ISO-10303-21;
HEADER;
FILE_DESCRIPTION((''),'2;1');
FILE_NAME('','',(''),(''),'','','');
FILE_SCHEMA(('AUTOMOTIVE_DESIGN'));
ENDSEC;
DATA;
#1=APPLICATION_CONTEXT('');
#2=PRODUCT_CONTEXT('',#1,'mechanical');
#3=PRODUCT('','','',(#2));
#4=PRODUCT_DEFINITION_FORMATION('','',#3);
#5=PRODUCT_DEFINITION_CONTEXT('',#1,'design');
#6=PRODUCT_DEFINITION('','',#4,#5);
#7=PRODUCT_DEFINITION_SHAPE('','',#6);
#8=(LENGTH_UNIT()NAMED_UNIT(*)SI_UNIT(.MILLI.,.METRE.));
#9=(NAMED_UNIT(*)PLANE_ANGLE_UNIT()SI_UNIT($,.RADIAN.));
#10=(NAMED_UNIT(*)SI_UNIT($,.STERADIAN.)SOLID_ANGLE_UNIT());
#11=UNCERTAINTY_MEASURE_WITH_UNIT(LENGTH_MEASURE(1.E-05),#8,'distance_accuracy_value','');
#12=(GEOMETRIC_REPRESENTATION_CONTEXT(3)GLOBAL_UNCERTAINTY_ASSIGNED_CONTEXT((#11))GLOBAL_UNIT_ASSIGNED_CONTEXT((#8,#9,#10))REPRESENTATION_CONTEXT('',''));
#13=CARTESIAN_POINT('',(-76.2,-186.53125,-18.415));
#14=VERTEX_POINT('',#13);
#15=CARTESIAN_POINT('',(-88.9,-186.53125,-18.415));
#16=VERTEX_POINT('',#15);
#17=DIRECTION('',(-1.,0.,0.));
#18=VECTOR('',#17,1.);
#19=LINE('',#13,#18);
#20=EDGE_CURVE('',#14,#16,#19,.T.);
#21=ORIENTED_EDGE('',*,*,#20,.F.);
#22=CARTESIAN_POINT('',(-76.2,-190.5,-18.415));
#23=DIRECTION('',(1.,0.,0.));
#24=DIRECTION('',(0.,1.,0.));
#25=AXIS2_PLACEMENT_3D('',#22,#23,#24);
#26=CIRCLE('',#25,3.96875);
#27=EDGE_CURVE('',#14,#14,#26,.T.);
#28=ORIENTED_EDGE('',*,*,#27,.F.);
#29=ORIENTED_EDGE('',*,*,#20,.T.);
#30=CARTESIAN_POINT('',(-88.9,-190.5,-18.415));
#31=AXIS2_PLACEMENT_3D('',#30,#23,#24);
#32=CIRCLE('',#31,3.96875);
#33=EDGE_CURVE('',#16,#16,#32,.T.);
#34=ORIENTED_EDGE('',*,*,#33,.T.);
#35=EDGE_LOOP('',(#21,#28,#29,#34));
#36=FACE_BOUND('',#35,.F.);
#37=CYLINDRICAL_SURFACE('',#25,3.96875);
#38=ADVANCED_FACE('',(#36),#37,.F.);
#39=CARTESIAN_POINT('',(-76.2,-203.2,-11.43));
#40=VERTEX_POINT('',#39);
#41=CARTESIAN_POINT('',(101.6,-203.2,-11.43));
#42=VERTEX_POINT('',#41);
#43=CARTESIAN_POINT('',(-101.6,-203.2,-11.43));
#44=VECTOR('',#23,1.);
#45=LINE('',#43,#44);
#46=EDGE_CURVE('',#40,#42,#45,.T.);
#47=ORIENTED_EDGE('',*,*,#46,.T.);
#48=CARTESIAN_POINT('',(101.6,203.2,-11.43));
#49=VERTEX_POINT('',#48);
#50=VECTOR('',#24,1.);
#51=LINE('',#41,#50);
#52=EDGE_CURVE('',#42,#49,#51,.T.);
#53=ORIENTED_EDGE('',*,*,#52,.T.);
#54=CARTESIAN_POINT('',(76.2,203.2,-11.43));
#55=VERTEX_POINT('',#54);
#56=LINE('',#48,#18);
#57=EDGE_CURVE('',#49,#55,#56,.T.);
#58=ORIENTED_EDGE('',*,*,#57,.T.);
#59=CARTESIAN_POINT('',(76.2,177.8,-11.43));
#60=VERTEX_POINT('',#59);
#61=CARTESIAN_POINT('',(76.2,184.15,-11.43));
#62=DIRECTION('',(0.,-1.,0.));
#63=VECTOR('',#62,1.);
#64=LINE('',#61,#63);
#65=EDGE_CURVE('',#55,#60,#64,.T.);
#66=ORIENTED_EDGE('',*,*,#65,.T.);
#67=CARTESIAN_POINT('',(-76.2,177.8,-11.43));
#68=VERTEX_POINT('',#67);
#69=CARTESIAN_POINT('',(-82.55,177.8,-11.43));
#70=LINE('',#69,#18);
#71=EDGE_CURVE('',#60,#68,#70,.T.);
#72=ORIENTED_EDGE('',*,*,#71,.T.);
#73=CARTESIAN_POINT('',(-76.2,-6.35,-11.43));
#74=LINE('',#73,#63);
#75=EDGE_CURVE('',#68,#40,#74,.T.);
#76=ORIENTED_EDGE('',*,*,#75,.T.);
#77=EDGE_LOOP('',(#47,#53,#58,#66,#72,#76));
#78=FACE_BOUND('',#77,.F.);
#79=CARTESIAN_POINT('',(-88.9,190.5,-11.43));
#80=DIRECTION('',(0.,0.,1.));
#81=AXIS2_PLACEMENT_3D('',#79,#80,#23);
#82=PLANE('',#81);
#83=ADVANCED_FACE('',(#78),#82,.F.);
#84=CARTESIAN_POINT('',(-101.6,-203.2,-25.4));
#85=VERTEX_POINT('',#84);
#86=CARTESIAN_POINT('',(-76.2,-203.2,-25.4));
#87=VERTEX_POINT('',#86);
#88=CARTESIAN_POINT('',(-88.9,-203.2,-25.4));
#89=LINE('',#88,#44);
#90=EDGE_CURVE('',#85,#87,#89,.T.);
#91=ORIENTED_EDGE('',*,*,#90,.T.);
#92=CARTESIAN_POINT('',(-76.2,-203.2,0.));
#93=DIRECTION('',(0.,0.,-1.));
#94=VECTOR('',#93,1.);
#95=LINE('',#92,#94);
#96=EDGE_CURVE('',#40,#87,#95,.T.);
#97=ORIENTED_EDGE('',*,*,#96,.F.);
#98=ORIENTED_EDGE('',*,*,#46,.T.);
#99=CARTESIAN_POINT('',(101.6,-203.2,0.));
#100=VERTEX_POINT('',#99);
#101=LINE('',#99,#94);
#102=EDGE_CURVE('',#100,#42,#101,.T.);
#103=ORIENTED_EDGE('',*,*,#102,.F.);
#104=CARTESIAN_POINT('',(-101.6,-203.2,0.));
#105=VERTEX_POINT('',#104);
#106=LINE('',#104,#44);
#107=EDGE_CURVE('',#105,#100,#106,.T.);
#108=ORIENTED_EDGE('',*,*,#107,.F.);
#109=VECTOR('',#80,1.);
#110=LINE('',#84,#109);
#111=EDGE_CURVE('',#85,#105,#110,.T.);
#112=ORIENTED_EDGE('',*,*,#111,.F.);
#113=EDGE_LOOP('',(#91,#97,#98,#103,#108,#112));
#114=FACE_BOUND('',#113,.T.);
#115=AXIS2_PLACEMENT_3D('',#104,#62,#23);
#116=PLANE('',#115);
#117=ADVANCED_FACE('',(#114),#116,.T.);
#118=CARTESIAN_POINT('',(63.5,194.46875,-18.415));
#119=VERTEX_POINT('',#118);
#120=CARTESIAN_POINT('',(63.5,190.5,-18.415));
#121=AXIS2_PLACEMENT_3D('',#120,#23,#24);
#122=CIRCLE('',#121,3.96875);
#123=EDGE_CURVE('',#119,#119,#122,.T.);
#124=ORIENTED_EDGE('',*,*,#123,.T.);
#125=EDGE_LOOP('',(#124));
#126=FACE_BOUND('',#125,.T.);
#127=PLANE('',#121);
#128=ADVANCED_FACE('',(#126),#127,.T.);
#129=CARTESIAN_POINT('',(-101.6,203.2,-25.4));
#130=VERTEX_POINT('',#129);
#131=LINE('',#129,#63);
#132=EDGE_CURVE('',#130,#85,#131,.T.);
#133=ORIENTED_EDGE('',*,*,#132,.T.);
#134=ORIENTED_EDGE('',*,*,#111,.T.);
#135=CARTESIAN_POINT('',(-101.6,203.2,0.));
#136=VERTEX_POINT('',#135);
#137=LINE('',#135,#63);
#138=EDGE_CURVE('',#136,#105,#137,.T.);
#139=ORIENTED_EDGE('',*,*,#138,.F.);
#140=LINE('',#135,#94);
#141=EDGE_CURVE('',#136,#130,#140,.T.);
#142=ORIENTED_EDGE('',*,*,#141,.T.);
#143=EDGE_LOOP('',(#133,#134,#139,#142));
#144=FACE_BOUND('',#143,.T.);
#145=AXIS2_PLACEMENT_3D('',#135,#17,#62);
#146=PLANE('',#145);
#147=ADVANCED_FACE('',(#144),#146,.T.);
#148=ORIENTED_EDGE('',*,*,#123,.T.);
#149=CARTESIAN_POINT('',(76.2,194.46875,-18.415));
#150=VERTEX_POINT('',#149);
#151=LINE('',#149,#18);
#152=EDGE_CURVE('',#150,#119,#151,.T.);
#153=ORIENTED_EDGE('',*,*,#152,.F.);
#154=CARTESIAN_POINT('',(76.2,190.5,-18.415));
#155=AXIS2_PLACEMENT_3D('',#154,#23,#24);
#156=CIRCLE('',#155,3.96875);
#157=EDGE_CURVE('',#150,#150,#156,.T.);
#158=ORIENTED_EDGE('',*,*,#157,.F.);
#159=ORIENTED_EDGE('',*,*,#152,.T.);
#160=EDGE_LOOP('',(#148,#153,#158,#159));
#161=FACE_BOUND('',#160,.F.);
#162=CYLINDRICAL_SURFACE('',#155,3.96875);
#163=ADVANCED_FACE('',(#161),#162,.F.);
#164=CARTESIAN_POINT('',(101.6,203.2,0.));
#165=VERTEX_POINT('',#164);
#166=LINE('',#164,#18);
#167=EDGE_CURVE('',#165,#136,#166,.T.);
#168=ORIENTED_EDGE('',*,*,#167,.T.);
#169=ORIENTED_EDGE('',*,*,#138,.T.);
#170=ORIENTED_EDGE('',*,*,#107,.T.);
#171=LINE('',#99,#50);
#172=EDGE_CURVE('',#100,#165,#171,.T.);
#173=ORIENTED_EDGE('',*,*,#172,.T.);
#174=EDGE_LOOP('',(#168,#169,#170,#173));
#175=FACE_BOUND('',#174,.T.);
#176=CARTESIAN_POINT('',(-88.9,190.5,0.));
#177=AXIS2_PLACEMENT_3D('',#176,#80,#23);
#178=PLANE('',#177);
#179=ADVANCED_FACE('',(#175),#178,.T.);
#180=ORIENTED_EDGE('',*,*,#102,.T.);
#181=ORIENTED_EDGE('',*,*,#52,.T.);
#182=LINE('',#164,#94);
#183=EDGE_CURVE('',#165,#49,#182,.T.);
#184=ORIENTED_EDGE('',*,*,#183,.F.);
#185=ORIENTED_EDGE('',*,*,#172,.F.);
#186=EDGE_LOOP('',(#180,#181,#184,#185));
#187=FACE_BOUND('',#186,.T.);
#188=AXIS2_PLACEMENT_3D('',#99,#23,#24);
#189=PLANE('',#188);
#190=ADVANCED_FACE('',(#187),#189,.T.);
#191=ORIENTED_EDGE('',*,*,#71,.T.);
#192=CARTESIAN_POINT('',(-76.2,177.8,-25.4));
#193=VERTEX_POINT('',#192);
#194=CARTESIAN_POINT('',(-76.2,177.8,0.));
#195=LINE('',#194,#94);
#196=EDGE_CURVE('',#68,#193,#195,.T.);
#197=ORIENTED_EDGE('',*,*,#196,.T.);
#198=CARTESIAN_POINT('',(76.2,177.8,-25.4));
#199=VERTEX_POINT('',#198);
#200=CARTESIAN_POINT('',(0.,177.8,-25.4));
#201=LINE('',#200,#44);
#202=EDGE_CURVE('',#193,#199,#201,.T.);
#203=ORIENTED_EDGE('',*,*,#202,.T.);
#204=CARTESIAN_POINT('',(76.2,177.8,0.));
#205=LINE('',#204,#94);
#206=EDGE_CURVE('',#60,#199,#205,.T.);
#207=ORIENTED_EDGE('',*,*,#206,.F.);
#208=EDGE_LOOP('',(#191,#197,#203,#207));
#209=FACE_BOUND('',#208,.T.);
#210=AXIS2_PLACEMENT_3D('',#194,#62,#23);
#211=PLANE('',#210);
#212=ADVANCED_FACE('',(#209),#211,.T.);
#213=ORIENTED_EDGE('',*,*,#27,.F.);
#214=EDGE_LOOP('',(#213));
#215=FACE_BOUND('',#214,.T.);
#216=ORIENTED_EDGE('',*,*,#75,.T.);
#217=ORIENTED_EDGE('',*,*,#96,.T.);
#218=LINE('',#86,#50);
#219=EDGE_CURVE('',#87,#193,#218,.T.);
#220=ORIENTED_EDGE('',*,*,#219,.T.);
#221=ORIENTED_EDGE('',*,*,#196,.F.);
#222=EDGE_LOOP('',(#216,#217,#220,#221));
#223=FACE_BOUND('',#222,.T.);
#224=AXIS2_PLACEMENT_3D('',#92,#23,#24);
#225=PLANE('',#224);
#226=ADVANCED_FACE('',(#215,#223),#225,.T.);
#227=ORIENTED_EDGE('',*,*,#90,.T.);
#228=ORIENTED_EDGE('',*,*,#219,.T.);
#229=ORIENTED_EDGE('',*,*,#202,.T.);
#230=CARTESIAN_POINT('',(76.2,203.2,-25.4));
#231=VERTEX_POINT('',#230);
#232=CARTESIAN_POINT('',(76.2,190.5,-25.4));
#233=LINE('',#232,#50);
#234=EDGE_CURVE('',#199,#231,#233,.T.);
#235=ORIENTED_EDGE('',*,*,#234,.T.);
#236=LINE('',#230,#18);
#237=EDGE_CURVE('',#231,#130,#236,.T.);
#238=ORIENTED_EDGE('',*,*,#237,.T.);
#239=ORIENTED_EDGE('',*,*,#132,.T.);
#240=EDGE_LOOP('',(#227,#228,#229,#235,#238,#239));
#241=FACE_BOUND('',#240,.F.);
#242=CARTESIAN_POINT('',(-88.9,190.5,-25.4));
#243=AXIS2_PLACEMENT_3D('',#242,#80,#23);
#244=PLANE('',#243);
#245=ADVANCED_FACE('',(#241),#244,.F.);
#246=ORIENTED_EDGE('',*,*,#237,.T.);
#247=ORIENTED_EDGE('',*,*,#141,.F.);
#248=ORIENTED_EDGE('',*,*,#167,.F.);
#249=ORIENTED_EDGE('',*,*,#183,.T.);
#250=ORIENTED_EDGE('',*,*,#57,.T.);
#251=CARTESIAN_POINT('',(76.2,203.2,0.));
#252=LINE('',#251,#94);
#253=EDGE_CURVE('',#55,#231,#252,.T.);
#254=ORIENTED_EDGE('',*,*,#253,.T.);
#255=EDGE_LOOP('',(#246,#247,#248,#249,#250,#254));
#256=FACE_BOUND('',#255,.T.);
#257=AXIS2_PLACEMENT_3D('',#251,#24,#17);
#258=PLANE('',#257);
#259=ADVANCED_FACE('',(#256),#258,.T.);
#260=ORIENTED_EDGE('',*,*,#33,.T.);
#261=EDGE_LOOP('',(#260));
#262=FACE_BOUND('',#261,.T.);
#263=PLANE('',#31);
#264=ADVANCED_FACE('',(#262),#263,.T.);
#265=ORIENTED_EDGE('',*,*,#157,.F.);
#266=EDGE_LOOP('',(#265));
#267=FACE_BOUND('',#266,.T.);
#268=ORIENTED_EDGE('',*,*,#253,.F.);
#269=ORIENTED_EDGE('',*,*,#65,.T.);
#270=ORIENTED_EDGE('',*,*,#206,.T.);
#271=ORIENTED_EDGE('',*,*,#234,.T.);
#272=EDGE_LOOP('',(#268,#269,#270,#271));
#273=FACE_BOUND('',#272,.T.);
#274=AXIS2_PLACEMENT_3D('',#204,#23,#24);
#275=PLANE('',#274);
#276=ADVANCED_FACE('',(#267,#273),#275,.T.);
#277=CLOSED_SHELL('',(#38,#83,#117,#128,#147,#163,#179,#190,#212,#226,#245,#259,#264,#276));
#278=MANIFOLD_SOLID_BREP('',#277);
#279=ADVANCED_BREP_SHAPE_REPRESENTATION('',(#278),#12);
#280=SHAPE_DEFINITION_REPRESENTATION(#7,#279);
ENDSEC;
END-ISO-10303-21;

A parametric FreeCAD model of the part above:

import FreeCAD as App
import Part
import Sketcher

V = App.Vector
Q = App.Units.Quantity


def add_polygon(sketch, points):
    """Adds a closed chain of lines whose ends are joined by coincident constraints."""
    first, n = sketch.GeometryCount, len(points)
    for a, b in zip(points, points[1:] + points[:1]):
        sketch.addGeometry(Part.LineSegment(App.Vector(*a, 0), App.Vector(*b, 0)), False)
    for i in range(n):
        sketch.addConstraint(Sketcher.Constraint("Coincident", first + i, 2, first + (i + 1) % n, 1))

doc = App.newDocument("Part")
body = doc.addObject("PartDesign::Body", "Body")

sketch1 = body.newObject("Sketcher::SketchObject", "Sketch")
sketch1.AttachmentSupport = (doc.getObject("XY_Plane"), [""])
sketch1.MapMode = "FlatFace"
add_polygon(sketch1, [(-101.6, 203.2), (-101.6, -203.2), (-76.2, -203.2), (-76.2, 177.8), (76.2, 177.8), (76.2, 203.2)])
sketch1.addConstraint([
    Sketcher.Constraint("Vertical", 0),
    Sketcher.Constraint("Horizontal", 1),
    Sketcher.Constraint("Vertical", 2),
    Sketcher.Constraint("Horizontal", 3),
    Sketcher.Constraint("Vertical", 4),
    Sketcher.Constraint("Horizontal", 5),
    Sketcher.Constraint("Symmetric", 1, 2, 4, 2, -1, 1),
    Sketcher.Constraint("Equal", 1, 4),
    Sketcher.Constraint("DistanceX", 1, 1, 1, 2, Q("1 in")),
    Sketcher.Constraint("DistanceX", 3, 1, 3, 2, Q("6 in")),
    Sketcher.Constraint("DistanceY", 0, 2, 0, 1, Q("16 in")),
])
pad1 = body.newObject("PartDesign::Pad", "Pad")
pad1.Profile = sketch1
pad1.Length = Q("1 in")
pad1.Reversed = True

sketch2 = body.newObject("Sketcher::SketchObject", "Sketch001")
sketch2.AttachmentSupport = (doc.getObject("XY_Plane"), [""])
sketch2.MapMode = "FlatFace"
add_polygon(sketch2, [(-101.6, 203.2), (-101.6, -203.2), (101.6, -203.2), (101.6, 203.2)])
sketch2.addConstraint([
    Sketcher.Constraint("Vertical", 0),
    Sketcher.Constraint("Horizontal", 1),
    Sketcher.Constraint("Vertical", 2),
    Sketcher.Constraint("Horizontal", 3),
    Sketcher.Constraint("Symmetric", 0, 2, 2, 2, -1, 1),
    Sketcher.Constraint("DistanceX", 1, 1, 1, 2, Q("8 in")),
    Sketcher.Constraint("DistanceY", 0, 2, 0, 1, Q("16 in")),
])
pad2 = body.newObject("PartDesign::Pad", "Pad001")
pad2.Profile = sketch2
pad2.Length = Q("0.45 in")
pad2.Reversed = True

sketch3 = body.newObject("Sketcher::SketchObject", "Sketch002")
sketch3.AttachmentSupport = (doc.getObject("YZ_Plane"), [""])
sketch3.MapMode = "FlatFace"
sketch3.AttachmentOffset = App.Placement(V(0, 0, 3 * 25.4), App.Rotation())
sketch3.addGeometry(Part.Circle(V(190.5, -18.415, 0), V(0, 0, 1), 3.96875), False)
sketch3.addConstraint([
    Sketcher.Constraint("Diameter", 0, Q("0.3125 in")),
    Sketcher.Constraint("DistanceX", -1, 1, 0, 3, Q("7.5 in")),
    Sketcher.Constraint("DistanceY", 0, 3, -1, 1, Q("0.725 in")),
])
pocket1 = body.newObject("PartDesign::Pocket", "Pocket")
pocket1.Profile = sketch3
pocket1.Length = Q("0.5 in")

sketch4 = body.newObject("Sketcher::SketchObject", "Sketch003")
sketch4.AttachmentSupport = (doc.getObject("YZ_Plane"), [""])
sketch4.MapMode = "FlatFace"
sketch4.AttachmentOffset = App.Placement(V(0, 0, -3 * 25.4), App.Rotation())
sketch4.addGeometry(Part.Circle(V(-190.5, -18.415, 0), V(0, 0, 1), 3.96875), False)
sketch4.addConstraint([
    Sketcher.Constraint("Diameter", 0, Q("0.3125 in")),
    Sketcher.Constraint("DistanceX", 0, 3, -1, 1, Q("7.5 in")),
    Sketcher.Constraint("DistanceY", 0, 3, -1, 1, Q("0.725 in")),
])
pocket2 = body.newObject("PartDesign::Pocket", "Pocket001")
pocket2.Profile = sketch4
pocket2.Length = Q("0.5 in")

doc.recompute()
